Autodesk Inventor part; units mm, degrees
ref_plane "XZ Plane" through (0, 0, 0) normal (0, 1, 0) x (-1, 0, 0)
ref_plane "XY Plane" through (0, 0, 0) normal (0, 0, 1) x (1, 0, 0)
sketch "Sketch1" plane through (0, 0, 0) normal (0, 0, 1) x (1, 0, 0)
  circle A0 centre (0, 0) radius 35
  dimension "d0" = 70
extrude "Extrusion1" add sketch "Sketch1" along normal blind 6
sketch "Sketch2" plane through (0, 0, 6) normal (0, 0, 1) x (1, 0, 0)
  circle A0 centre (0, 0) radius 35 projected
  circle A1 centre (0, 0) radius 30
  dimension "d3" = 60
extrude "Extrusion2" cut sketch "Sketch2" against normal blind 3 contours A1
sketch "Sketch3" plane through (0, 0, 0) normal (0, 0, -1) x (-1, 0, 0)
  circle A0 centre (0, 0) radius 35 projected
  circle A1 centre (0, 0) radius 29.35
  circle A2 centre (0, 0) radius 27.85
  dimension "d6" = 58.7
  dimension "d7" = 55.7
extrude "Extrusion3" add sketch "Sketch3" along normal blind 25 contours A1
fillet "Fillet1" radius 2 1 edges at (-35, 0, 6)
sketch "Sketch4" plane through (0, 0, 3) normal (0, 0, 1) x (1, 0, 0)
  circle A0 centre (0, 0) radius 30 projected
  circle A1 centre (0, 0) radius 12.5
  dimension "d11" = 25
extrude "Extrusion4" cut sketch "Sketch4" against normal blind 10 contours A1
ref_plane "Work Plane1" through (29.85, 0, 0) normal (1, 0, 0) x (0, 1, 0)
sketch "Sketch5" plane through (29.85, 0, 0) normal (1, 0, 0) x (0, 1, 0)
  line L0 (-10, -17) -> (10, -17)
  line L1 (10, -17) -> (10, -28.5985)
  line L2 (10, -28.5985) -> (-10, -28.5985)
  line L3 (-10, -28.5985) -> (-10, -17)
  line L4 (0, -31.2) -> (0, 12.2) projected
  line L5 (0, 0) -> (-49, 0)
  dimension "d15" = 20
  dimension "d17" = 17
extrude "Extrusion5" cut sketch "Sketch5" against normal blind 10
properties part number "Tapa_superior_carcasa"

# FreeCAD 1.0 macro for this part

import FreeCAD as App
import Part
import Sketcher
from FreeCAD import Vector
Q = App.Units.Quantity


def edges_at(feature, points):
    """Names of the edges that pass closest to the given points."""
    edges = feature.Shape.Edges
    near = lambda p: min(range(len(edges)), key=lambda i: edges[i].distToShape(Part.Vertex(*p))[0])
    return sorted({f"Edge{near(p) + 1}" for p in points})

doc = App.newDocument("Part")
params = doc.addObject("Spreadsheet::Sheet", "Params")
for row, (alias, value) in enumerate([
    ("sketch1_diameter", "70 mm"),
    ("pad1_length", "6 mm"),
    ("sketch2_diameter", "60 mm"),
    ("pocket1_length", "3 mm"),
    ("sketch3_diameter", "58.7 mm"),
    ("sketch3_diameter2", "55.7 mm"),
    ("pad2_length", "25 mm"),
    ("fillet_radius", "2 mm"),
    ("sketch4_diameter", "25 mm"),
    ("pocket2_length", "10 mm"),
    ("sketch5_width", "20 mm"),
    ("pocket3_length", "10 mm"),
], start=1):
    params.set(f"A{row}", alias)
    params.set(f"B{row}", "=" + value)
    params.setAlias(f"B{row}", alias)

body = doc.addObject("PartDesign::Body", "Body")

# Sketch on XY plane
sketch1 = body.newObject("Sketcher::SketchObject", "Sketch")
sketch1.AttachmentSupport = (doc.getObject("XY_Plane"), [""])
sketch1.MapMode = "FlatFace"
sketch1.addGeometry(Part.Circle(Vector(0, 0, 0), Vector(0, 0, 1), 35), False)
sketch1.addConstraint([
    Sketcher.Constraint("Coincident", 0, 3, -1, 1),
    Sketcher.Constraint("Diameter", 0, Q("70 mm")),
])
sketch1.setExpression("Constraints[1]", "Params.sketch1_diameter")
pad1 = body.newObject("PartDesign::Pad", "Pad")
pad1.Profile = sketch1
pad1.setExpression("Length", "Params.pad1_length")

# Sketch on XY plane
sketch2 = body.newObject("Sketcher::SketchObject", "Sketch001")
sketch2.AttachmentSupport = (doc.getObject("XY_Plane"), [""])
sketch2.MapMode = "FlatFace"
sketch2.AttachmentOffset = App.Placement(Vector(0, 0, 6), App.Rotation())
sketch2.addGeometry(Part.Circle(Vector(0, 0, 0), Vector(0, 0, 1), 30), False)
sketch2.addConstraint([
    Sketcher.Constraint("Coincident", 0, 3, -1, 1),
    Sketcher.Constraint("Diameter", 0, Q("60 mm")),
])
sketch2.setExpression("Constraints[1]", "Params.sketch2_diameter")
pocket1 = body.newObject("PartDesign::Pocket", "Pocket")
pocket1.Profile = sketch2
pocket1.setExpression("Length", "Params.pocket1_length")

# Sketch on XY plane
sketch3 = body.newObject("Sketcher::SketchObject", "Sketch002")
sketch3.AttachmentSupport = (doc.getObject("XY_Plane"), [""])
sketch3.MapMode = "FlatFace"
sketch3.addGeometry([
    Part.Circle(Vector(0, 0, 0), Vector(0, 0, 1), 29),
    Part.Circle(Vector(0, 0, 0), Vector(0, 0, 1), 28),
], False)
sketch3.addConstraint([
    Sketcher.Constraint("Coincident", 0, 3, -1, 1),
    Sketcher.Constraint("Coincident", 1, 3, -1, 1),
    Sketcher.Constraint("Diameter", 0, Q("58.7 mm")),
    Sketcher.Constraint("Diameter", 1, Q("55.7 mm")),
])
sketch3.setExpression("Constraints[2]", "Params.sketch3_diameter")
sketch3.setExpression("Constraints[3]", "Params.sketch3_diameter2")
pad2 = body.newObject("PartDesign::Pad", "Pad001")
pad2.Profile = sketch3
pad2.setExpression("Length", "Params.pad2_length")
pad2.Reversed = True
doc.recompute()

fillet = body.newObject("PartDesign::Fillet", "Fillet")
fillet.Base = (pad2, edges_at(pad2, [(-35, 0, 6)]))
fillet.setExpression("Radius", "Params.fillet_radius")

# Sketch on XY plane
sketch4 = body.newObject("Sketcher::SketchObject", "Sketch003")
sketch4.AttachmentSupport = (doc.getObject("XY_Plane"), [""])
sketch4.MapMode = "FlatFace"
sketch4.AttachmentOffset = App.Placement(Vector(0, 0, 3), App.Rotation())
sketch4.addGeometry(Part.Circle(Vector(0, 0, 0), Vector(0, 0, 1), 12), False)
sketch4.addConstraint([
    Sketcher.Constraint("Coincident", 0, 3, -1, 1),
    Sketcher.Constraint("Diameter", 0, Q("25 mm")),
])
sketch4.setExpression("Constraints[1]", "Params.sketch4_diameter")
pocket2 = body.newObject("PartDesign::Pocket", "Pocket001")
pocket2.Profile = sketch4
pocket2.setExpression("Length", "Params.pocket2_length")

# Sketch on YZ plane
sketch5 = body.newObject("Sketcher::SketchObject", "Sketch004")
sketch5.AttachmentSupport = (doc.getObject("YZ_Plane"), [""])
sketch5.MapMode = "FlatFace"
sketch5.AttachmentOffset = App.Placement(Vector(0, 0, 29.85), App.Rotation())
sketch5.addGeometry([
    Part.LineSegment(Vector(-10, -17, 0), Vector(-10, -29, 0)),
    Part.LineSegment(Vector(-10, -29, 0), Vector(10, -29, 0)),
    Part.LineSegment(Vector(10, -29, 0), Vector(10, -17, 0)),
    Part.LineSegment(Vector(10, -17, 0), Vector(-10, -17, 0)),
], False)
sketch5.addConstraint([
    Sketcher.Constraint("Coincident", 0, 2, 1, 1),
    Sketcher.Constraint("Coincident", 1, 2, 2, 1),
    Sketcher.Constraint("Coincident", 2, 2, 3, 1),
    Sketcher.Constraint("Coincident", 3, 2, 0, 1),
    Sketcher.Constraint("Vertical", 0),
    Sketcher.Constraint("Horizontal", 1),
    Sketcher.Constraint("Vertical", 2),
    Sketcher.Constraint("Horizontal", 3),
    Sketcher.Constraint("DistanceX", 1, 1, 1, 2, Q("20 mm")),
    Sketcher.Constraint("DistanceY", 2, 2, -1, 1, Q("17 mm")),
    Sketcher.Constraint("DistanceX", 0, 2, -1, 1, Q("10 mm")),
    Sketcher.Constraint("DistanceY", 0, 2, 0, 1, Q("11.5985 mm")),
])
sketch5.setExpression("Constraints[8]", "Params.sketch5_width")
pocket3 = body.newObject("PartDesign::Pocket", "Pocket002")
pocket3.Profile = sketch5
pocket3.setExpression("Length", "Params.pocket3_length")

doc.recompute()
